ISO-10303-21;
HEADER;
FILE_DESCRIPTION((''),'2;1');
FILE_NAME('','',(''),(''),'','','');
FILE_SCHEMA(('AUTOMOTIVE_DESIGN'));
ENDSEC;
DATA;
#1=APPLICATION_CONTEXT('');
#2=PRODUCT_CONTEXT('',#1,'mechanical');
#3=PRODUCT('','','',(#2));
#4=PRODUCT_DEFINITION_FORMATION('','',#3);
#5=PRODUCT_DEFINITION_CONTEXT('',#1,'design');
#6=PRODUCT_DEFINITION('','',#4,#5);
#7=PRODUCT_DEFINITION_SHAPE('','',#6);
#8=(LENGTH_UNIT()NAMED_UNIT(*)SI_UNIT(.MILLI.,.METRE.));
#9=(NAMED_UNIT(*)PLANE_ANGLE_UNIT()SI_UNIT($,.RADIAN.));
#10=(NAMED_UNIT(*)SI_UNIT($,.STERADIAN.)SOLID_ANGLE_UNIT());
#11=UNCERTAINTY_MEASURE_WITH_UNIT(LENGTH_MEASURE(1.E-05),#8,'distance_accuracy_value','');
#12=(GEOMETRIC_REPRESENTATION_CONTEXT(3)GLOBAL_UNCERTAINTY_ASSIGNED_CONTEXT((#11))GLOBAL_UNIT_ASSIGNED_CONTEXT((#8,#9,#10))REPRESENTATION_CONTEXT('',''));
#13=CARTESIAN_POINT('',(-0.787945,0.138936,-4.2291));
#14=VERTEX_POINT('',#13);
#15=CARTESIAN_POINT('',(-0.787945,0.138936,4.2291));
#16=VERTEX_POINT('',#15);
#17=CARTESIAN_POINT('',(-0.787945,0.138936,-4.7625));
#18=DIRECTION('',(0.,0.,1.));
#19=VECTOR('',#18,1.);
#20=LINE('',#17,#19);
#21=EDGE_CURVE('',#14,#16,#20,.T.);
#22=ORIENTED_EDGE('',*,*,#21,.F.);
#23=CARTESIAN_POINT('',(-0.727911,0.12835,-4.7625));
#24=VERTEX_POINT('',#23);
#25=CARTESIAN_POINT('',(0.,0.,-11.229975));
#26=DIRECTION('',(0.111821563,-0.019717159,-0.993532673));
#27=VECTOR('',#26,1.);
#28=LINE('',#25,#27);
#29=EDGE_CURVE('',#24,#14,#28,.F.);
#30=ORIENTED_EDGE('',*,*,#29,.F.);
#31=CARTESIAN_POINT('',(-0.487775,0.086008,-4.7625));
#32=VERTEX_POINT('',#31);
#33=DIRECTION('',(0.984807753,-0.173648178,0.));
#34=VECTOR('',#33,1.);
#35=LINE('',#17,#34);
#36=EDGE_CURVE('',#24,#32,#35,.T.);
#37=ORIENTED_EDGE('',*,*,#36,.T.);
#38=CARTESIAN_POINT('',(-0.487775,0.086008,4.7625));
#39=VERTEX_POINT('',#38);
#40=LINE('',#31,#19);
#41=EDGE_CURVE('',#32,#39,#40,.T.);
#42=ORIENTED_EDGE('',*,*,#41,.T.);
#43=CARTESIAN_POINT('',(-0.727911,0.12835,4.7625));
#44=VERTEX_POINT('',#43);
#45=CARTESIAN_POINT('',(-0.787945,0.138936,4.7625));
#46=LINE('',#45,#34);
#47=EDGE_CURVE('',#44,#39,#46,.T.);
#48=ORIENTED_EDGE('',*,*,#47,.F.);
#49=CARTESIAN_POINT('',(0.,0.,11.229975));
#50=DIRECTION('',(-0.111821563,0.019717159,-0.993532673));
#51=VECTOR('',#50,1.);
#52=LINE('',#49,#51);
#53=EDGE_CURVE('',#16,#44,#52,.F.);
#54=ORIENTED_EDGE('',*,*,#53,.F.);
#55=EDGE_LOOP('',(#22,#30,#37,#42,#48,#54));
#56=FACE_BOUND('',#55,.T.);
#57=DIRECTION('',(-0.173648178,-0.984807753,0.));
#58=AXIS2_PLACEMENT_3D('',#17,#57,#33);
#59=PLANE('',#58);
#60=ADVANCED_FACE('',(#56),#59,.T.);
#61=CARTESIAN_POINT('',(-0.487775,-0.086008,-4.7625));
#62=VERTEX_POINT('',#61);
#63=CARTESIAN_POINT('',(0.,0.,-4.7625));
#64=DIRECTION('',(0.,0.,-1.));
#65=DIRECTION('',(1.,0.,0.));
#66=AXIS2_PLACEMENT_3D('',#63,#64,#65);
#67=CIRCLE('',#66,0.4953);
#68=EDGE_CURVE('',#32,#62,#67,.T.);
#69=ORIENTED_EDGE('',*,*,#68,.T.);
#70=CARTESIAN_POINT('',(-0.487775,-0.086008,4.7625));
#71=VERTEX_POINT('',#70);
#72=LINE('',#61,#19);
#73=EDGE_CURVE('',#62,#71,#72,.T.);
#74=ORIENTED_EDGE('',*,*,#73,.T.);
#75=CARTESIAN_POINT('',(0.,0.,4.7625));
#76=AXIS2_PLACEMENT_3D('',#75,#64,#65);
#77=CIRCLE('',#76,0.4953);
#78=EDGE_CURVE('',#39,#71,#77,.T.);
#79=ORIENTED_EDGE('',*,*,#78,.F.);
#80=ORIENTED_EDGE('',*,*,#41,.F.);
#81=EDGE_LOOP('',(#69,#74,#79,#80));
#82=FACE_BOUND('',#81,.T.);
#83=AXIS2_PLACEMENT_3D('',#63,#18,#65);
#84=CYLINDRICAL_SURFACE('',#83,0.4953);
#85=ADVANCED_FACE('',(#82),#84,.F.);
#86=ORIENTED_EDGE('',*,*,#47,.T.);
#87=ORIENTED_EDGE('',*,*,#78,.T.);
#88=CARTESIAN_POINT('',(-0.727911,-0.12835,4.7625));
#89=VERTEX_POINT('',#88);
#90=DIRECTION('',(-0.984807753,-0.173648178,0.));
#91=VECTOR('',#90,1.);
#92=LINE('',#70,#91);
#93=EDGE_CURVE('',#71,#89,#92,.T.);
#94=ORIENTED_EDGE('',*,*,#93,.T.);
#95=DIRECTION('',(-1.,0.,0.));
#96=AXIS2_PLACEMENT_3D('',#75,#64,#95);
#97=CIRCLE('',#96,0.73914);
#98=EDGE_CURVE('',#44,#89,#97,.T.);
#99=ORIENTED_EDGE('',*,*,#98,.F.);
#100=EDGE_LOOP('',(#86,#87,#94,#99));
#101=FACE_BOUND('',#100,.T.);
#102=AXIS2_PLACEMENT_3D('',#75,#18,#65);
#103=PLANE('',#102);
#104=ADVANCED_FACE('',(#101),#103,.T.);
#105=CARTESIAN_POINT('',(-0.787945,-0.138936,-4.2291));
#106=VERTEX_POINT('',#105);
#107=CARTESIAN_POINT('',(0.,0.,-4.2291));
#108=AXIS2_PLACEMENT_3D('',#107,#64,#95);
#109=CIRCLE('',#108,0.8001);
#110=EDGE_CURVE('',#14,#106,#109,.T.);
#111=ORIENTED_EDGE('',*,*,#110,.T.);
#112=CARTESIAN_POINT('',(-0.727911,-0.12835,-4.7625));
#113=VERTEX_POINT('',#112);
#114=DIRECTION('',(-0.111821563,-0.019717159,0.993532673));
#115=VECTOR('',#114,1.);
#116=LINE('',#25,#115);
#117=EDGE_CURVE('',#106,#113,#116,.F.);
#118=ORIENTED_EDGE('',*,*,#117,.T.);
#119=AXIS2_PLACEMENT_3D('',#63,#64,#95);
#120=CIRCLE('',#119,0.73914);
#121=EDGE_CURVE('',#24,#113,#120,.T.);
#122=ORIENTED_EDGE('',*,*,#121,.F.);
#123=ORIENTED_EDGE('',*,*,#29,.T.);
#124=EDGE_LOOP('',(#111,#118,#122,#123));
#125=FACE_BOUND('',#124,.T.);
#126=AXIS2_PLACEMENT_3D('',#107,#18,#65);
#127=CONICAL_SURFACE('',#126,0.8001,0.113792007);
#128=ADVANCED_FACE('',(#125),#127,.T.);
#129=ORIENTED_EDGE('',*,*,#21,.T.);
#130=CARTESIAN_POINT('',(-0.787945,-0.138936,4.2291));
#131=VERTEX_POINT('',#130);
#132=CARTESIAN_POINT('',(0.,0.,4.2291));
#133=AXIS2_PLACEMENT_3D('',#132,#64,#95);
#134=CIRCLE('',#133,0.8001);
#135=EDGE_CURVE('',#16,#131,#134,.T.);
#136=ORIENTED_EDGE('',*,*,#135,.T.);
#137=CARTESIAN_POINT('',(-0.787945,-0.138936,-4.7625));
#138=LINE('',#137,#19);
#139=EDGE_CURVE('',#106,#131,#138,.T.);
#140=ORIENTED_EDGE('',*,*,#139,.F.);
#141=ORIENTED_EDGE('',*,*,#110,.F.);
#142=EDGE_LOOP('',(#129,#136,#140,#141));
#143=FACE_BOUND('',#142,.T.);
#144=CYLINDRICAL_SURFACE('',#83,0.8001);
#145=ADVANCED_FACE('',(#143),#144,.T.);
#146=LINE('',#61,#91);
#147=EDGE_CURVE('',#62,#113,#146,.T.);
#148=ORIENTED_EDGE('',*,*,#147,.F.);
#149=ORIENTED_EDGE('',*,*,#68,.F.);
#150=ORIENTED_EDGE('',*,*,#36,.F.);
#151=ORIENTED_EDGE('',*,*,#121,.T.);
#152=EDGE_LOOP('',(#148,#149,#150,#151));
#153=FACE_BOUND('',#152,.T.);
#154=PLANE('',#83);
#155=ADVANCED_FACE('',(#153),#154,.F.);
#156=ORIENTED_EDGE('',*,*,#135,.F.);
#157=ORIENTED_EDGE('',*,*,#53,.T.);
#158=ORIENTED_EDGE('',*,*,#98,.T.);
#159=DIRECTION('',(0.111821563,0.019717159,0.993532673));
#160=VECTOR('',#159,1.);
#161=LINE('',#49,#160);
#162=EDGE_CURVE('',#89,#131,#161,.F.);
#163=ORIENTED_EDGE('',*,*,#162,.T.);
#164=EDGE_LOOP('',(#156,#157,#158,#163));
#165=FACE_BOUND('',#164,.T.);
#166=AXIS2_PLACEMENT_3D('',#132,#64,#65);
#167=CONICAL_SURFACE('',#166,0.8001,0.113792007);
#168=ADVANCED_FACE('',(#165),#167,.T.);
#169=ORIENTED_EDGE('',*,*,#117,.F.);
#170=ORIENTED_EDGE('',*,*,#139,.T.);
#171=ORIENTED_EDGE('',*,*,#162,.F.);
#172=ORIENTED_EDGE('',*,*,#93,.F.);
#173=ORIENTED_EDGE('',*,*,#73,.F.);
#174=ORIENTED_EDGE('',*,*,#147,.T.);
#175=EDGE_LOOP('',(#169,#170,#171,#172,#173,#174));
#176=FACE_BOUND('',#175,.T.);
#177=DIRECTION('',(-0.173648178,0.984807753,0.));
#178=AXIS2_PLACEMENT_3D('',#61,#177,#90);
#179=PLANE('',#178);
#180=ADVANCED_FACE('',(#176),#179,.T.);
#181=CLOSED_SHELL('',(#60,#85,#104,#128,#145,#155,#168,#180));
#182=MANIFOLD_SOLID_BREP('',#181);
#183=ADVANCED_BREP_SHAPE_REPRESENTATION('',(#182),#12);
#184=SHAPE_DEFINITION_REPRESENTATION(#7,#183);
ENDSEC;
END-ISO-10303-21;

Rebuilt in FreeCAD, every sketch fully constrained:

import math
import FreeCAD as App
import Part
import Sketcher
Q = App.Units.Quantity

doc = App.newDocument("Part")
params = doc.addObject("Spreadsheet::Sheet", "Params")
for row, (alias, value) in enumerate([
    ("pad1_length", "0.1875 in"),
    ("pad1_length2", "0.1875 in"),
    ("sketch2_height", "0.021 in"),
    ("groove_angle", "360 deg"),
], start=1):
    params.set(f"A{row}", alias)
    params.set(f"B{row}", "=" + value)
    params.setAlias(f"B{row}", alias)

body = doc.addObject("PartDesign::Body", "Body")

# Sketch on XY plane
sketch1 = doc.addObject("Sketcher::SketchObject", "Sketch")
body.addObject(sketch1)
sketch1.AttachmentSupport = (doc.XY_Plane, [""])
sketch1.MapMode = "FlatFace"
sketch1.addGeometry([
    Part.LineSegment(App.Vector(-0.49, -0.09, 0), App.Vector(-0.79, -0.14, 0)),
    Part.ArcOfCircle(Part.Circle(App.Vector(0, 0, 0), App.Vector(0, 0, 1), 0.8), math.radians(-170), math.radians(170)),
    Part.LineSegment(App.Vector(-0.79, 0.14, 0), App.Vector(-0.49, 0.09, 0)),
    Part.ArcOfCircle(Part.Circle(App.Vector(0, 0, 0), App.Vector(0, 0, 1), 0.5), math.radians(-170), math.radians(170)),
], False)
sketch1.addConstraint([
    Sketcher.Constraint("Coincident", 0, 2, 1, 1),
    Sketcher.Constraint("Coincident", 1, 2, 2, 1),
    Sketcher.Constraint("Coincident", 2, 2, 3, 2),
    Sketcher.Constraint("Coincident", 3, 1, 0, 1),
    Sketcher.Constraint("Coincident", 1, 3, -1, 1),
    Sketcher.Constraint("Coincident", 3, 3, -1, 1),
    Sketcher.Constraint("Vertical", 0, 2, 1, 2),
    Sketcher.Constraint("Vertical", 2, 2, 3, 1),
    Sketcher.Constraint("Angle", 0, Q("-170 deg")),
    Sketcher.Constraint("Radius", 1, Q("0.0315 in")),
    Sketcher.Constraint("Radius", 3, Q("0.0195 in")),
    Sketcher.Constraint("DistanceY", 0, 2, 1, 2, 0.277872),
])
pad1 = doc.addObject("PartDesign::Pad", "Pad")
body.addObject(pad1)
pad1.Profile = sketch1
pad1.Type = "TwoLengths"
pad1.setExpression("Length", "Params.pad1_length")
pad1.setExpression("Length2", "Params.pad1_length2")

# Sketch on YZ plane
sketch2 = doc.addObject("Sketcher::SketchObject", "Sketch001")
body.addObject(sketch2)
sketch2.AttachmentSupport = (doc.YZ_Plane, [""])
sketch2.MapMode = "FlatFace"
sketch2.addGeometry([
    Part.LineSegment(App.Vector(0.8, -4.23, 0), App.Vector(0.74, -4.76, 0)),
    Part.LineSegment(App.Vector(0.74, -4.76, 0), App.Vector(0.8, -4.76, 0)),
    Part.LineSegment(App.Vector(0.8, -4.76, 0), App.Vector(0.8, -4.23, 0)),
], False)
sketch2.addConstraint([
    Sketcher.Constraint("Coincident", 0, 2, 1, 1),
    Sketcher.Constraint("Coincident", 1, 2, 2, 1),
    Sketcher.Constraint("Coincident", 2, 2, 0, 1),
    Sketcher.Constraint("Horizontal", 1),
    Sketcher.Constraint("Vertical", 2),
    Sketcher.Constraint("DistanceY", 2, 1, 2, 2, Q("0.021 in")),
    Sketcher.Constraint("DistanceX", 1, 1, 1, 2, Q("0.0024 in")),
    Sketcher.Constraint("DistanceY", 0, 2, -1, 1, Q("0.1875 in")),
    Sketcher.Constraint("DistanceX", -1, 1, 0, 2, Q("0.0291 in")),
])
sketch2.setExpression("Constraints[5]", "Params.sketch2_height")
groove = doc.addObject("PartDesign::Groove", "Groove")
body.addObject(groove)
groove.Profile = sketch2
groove.ReferenceAxis = (sketch2, ["V_Axis"])
groove.setExpression("Angle", "Params.groove_angle")
doc.recompute()

mirrored = doc.addObject("PartDesign::Mirrored", "Mirrored")
body.addObject(mirrored)
mirrored.Originals = [groove]
mirrored.MirrorPlane = (doc.XY_Plane, [""])
body.Tip = mirrored

doc.recompute()
